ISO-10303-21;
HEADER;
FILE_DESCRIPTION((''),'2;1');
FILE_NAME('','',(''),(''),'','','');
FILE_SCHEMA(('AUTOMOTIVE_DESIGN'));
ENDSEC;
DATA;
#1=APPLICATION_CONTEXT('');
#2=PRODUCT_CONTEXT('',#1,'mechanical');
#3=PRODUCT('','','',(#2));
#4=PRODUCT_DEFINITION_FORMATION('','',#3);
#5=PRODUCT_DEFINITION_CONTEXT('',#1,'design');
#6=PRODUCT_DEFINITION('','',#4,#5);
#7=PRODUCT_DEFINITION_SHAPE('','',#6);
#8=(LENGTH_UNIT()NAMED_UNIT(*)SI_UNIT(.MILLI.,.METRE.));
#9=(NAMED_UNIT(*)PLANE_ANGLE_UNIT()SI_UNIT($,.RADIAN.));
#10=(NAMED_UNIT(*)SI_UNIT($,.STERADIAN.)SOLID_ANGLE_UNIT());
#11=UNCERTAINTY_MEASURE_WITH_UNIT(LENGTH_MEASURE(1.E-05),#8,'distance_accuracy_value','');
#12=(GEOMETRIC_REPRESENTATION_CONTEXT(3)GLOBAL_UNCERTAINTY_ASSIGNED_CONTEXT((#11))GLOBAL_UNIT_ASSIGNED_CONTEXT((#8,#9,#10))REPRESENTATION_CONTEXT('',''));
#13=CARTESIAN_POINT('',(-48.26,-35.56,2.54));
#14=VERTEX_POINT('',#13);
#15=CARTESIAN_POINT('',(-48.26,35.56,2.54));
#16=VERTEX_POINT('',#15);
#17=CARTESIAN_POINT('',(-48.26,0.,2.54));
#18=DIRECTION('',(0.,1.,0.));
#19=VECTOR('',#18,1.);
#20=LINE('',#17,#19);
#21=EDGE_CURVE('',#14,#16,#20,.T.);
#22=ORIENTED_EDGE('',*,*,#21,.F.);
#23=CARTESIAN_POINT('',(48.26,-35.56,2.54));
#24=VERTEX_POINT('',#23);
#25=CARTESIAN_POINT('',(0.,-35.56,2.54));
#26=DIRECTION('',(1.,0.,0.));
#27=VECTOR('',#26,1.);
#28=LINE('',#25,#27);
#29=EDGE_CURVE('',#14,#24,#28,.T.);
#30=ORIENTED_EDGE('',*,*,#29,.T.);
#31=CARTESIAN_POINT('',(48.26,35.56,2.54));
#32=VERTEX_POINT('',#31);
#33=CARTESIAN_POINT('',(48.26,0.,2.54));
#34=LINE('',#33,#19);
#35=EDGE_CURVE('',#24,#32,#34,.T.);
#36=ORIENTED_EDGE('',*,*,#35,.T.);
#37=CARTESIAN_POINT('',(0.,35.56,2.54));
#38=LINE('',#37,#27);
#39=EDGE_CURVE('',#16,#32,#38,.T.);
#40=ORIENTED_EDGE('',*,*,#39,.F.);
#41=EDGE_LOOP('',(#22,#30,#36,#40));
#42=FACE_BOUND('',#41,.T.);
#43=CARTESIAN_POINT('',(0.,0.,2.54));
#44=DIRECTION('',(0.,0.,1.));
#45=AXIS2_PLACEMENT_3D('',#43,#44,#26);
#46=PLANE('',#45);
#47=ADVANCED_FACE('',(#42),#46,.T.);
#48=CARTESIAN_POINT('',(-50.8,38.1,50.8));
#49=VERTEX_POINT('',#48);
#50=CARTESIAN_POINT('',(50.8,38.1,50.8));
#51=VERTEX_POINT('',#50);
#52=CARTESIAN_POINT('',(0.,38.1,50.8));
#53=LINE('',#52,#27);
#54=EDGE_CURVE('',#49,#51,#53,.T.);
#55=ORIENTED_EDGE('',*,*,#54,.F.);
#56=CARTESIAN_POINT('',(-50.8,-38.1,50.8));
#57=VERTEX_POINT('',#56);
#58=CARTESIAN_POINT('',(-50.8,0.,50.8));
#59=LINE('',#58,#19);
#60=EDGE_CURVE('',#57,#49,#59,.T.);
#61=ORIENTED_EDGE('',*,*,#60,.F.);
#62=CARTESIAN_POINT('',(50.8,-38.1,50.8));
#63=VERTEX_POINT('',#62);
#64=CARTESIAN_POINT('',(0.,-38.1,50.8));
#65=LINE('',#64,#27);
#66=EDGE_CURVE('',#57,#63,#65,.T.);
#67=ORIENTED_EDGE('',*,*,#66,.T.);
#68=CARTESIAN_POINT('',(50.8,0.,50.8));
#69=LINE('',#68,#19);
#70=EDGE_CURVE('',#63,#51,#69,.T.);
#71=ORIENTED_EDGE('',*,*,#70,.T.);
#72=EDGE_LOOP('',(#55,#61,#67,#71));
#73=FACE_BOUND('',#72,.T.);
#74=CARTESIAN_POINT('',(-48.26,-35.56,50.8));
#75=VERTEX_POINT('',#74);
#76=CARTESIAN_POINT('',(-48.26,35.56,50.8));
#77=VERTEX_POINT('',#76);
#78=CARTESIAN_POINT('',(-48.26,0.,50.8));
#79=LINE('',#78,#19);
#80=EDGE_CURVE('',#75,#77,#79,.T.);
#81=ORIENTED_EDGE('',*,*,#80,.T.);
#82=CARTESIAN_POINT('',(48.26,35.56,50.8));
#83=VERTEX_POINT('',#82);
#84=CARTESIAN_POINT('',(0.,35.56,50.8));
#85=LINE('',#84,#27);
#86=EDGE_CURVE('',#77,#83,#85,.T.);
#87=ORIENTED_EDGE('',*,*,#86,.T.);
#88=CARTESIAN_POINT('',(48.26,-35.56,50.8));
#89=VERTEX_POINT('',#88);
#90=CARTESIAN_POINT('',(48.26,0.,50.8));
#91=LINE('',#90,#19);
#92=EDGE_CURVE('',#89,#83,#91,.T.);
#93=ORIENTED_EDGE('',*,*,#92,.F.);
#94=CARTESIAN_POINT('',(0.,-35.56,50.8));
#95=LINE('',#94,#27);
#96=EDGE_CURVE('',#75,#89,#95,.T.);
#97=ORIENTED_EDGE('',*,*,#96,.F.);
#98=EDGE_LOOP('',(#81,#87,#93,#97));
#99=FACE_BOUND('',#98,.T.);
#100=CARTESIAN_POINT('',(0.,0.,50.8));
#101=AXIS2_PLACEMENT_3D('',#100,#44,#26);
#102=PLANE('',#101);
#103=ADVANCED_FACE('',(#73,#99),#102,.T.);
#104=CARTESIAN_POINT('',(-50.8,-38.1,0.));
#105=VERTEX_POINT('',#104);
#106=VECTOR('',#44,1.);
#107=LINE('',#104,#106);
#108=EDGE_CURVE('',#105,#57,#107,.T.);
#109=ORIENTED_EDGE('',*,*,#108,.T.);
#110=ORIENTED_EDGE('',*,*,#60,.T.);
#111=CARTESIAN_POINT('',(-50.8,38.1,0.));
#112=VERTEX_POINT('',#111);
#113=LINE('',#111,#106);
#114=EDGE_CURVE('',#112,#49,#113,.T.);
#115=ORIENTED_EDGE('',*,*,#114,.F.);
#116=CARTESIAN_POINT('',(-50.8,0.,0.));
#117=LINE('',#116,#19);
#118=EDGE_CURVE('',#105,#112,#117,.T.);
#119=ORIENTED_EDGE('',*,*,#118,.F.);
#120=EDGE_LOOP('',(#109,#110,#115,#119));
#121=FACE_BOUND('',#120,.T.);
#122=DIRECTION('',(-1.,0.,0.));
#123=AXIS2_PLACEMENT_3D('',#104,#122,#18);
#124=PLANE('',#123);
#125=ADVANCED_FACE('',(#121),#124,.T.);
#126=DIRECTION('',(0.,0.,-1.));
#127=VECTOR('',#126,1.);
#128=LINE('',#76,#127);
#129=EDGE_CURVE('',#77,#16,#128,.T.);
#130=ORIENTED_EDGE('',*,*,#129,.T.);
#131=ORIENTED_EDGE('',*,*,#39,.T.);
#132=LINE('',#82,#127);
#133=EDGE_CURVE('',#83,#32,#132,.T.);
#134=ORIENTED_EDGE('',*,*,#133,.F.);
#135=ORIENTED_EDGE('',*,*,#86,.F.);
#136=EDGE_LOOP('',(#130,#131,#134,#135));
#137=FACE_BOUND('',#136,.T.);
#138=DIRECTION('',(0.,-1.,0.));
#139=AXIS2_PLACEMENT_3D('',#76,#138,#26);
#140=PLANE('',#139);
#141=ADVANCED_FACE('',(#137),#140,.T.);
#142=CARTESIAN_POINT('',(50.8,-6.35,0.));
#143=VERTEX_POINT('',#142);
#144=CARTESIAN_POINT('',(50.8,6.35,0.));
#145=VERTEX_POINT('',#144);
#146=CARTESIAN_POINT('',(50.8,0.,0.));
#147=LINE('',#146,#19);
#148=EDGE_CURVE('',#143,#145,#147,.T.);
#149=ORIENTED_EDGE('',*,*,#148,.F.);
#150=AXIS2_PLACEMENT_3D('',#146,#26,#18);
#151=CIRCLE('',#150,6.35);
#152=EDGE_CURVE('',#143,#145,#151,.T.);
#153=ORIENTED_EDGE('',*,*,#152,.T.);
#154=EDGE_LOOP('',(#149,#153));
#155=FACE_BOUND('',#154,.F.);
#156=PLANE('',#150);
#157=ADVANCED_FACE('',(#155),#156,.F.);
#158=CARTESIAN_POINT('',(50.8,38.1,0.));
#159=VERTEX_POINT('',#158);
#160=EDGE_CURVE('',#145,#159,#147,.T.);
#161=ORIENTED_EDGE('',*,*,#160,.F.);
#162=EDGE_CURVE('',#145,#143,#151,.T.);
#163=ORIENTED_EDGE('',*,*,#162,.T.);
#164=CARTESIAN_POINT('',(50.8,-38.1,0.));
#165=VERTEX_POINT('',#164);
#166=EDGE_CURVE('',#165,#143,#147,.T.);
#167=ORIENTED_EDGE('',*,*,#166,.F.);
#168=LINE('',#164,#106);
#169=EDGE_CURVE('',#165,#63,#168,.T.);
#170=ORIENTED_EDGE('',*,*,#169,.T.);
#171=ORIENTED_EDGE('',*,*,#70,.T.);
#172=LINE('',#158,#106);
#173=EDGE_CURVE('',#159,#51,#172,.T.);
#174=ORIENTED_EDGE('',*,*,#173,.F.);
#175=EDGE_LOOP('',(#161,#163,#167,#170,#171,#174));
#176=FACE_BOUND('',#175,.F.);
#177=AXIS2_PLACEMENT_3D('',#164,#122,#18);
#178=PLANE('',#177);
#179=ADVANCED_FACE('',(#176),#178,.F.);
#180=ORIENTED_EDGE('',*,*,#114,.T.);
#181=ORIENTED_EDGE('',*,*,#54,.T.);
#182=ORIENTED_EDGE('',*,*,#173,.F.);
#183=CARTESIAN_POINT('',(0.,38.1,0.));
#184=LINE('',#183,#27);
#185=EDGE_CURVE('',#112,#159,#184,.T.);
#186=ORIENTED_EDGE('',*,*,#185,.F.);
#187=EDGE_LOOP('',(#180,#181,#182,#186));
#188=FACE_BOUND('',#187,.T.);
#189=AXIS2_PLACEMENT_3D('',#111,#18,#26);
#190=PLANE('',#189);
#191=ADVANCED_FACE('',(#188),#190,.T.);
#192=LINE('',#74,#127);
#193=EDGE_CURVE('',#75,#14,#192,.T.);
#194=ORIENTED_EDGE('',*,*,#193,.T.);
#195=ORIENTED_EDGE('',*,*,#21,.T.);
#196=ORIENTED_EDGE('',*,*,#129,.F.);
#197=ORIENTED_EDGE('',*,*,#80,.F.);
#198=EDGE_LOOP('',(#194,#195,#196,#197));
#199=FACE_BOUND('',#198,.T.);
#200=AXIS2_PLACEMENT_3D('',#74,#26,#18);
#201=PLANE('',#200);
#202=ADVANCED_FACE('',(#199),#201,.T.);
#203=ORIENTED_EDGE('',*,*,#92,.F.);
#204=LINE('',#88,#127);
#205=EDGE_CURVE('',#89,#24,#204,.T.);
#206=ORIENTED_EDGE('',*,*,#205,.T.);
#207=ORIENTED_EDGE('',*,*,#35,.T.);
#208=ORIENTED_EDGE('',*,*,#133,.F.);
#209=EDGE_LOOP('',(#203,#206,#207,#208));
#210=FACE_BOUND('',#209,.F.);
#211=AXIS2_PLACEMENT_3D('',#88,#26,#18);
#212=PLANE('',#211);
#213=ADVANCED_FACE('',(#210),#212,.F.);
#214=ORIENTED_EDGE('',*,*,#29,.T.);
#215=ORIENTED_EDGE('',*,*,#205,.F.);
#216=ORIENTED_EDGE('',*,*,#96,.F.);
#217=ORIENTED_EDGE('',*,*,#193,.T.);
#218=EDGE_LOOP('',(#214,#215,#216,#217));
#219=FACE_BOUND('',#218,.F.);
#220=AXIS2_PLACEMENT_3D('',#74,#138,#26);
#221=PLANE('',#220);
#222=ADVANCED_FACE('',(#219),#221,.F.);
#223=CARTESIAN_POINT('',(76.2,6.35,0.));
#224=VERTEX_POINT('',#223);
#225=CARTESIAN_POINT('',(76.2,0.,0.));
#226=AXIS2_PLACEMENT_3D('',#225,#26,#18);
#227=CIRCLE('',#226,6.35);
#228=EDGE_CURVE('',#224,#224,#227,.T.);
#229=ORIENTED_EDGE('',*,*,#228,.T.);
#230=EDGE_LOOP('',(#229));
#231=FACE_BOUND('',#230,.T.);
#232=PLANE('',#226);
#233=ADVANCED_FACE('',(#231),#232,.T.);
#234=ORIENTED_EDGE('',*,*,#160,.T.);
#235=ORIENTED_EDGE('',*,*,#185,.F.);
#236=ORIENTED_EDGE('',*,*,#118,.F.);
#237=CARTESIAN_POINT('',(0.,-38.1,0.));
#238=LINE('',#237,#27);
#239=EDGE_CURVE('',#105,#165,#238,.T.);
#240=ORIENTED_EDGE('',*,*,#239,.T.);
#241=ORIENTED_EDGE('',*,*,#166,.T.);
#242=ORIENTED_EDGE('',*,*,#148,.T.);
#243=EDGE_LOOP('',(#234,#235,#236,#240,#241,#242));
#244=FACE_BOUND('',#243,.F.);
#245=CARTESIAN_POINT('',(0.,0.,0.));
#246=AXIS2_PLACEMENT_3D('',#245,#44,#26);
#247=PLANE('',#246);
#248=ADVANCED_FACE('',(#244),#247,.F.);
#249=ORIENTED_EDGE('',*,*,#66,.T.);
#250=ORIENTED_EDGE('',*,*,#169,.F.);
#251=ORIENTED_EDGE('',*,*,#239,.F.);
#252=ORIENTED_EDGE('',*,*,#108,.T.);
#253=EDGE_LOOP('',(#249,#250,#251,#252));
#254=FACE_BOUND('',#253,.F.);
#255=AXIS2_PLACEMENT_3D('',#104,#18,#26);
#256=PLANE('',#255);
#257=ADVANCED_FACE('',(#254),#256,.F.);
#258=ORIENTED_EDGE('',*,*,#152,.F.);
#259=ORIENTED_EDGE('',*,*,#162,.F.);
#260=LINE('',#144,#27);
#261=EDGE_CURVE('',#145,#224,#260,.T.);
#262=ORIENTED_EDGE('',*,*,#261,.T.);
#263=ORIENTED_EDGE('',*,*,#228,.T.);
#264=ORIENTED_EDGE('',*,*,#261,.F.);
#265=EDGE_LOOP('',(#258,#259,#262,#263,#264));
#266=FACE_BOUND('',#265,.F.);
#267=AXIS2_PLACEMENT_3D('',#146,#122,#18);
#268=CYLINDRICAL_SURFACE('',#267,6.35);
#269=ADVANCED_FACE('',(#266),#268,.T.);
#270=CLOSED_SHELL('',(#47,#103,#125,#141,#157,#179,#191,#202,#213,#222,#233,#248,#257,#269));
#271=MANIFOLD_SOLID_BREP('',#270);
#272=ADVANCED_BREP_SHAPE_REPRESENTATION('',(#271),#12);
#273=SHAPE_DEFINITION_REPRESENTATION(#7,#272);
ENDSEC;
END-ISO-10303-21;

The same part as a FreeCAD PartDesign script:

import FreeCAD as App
import Part
import Sketcher
Q = App.Units.Quantity

doc = App.newDocument("Part")
body = doc.addObject("PartDesign::Body", "Body")

# Sketch on XY plane
sketch1 = body.newObject("Sketcher::SketchObject", "Sketch")
sketch1.AttachmentSupport = (doc.getObject("XY_Plane"), [""])
sketch1.MapMode = "FlatFace"
sketch1.addGeometry([
    Part.LineSegment(App.Vector(-51, 38, 0), App.Vector(-51, -38, 0)),
    Part.LineSegment(App.Vector(-51, -38, 0), App.Vector(51, -38, 0)),
    Part.LineSegment(App.Vector(51, -38, 0), App.Vector(51, 38, 0)),
    Part.LineSegment(App.Vector(51, 38, 0), App.Vector(-51, 38, 0)),
], False)
sketch1.addConstraint([
    Sketcher.Constraint("Coincident", 0, 2, 1, 1),
    Sketcher.Constraint("Coincident", 1, 2, 2, 1),
    Sketcher.Constraint("Coincident", 2, 2, 3, 1),
    Sketcher.Constraint("Coincident", 3, 2, 0, 1),
    Sketcher.Constraint("Vertical", 0),
    Sketcher.Constraint("Horizontal", 1),
    Sketcher.Constraint("Vertical", 2),
    Sketcher.Constraint("Horizontal", 3),
    Sketcher.Constraint("Symmetric", 0, 2, 2, 2, -1, 1),
    Sketcher.Constraint("DistanceX", 1, 1, 1, 2, Q("4 in")),
    Sketcher.Constraint("DistanceY", 0, 2, 0, 1, Q("3 in")),
])
pad1 = body.newObject("PartDesign::Pad", "Pad")
pad1.Profile = sketch1
pad1.Length = Q("2 in")

# Sketch on XY plane
sketch2 = body.newObject("Sketcher::SketchObject", "Sketch001")
sketch2.AttachmentSupport = (doc.getObject("XY_Plane"), [""])
sketch2.MapMode = "FlatFace"
sketch2.AttachmentOffset = App.Placement(App.Vector(0, 0, 2 * 25.4), App.Rotation())
sketch2.addGeometry([
    Part.LineSegment(App.Vector(-48, 36, 0), App.Vector(-48, -36, 0)),
    Part.LineSegment(App.Vector(-48, -36, 0), App.Vector(48, -36, 0)),
    Part.LineSegment(App.Vector(48, -36, 0), App.Vector(48, 36, 0)),
    Part.LineSegment(App.Vector(48, 36, 0), App.Vector(-48, 36, 0)),
], False)
sketch2.addConstraint([
    Sketcher.Constraint("Coincident", 0, 2, 1, 1),
    Sketcher.Constraint("Coincident", 1, 2, 2, 1),
    Sketcher.Constraint("Coincident", 2, 2, 3, 1),
    Sketcher.Constraint("Coincident", 3, 2, 0, 1),
    Sketcher.Constraint("Vertical", 0),
    Sketcher.Constraint("Horizontal", 1),
    Sketcher.Constraint("Vertical", 2),
    Sketcher.Constraint("Horizontal", 3),
    Sketcher.Constraint("Symmetric", 0, 2, 2, 2, -1, 1),
    Sketcher.Constraint("DistanceX", 1, 1, 1, 2, Q("3.8 in")),
    Sketcher.Constraint("DistanceY", 0, 2, 0, 1, Q("2.8 in")),
])
pocket1 = body.newObject("PartDesign::Pocket", "Pocket")
pocket1.Profile = sketch2
pocket1.Length = Q("1.9 in")

# Sketch on YZ plane
sketch3 = body.newObject("Sketcher::SketchObject", "Sketch002")
sketch3.AttachmentSupport = (doc.getObject("YZ_Plane"), [""])
sketch3.MapMode = "FlatFace"
sketch3.AttachmentOffset = App.Placement(App.Vector(0, 0, 2 * 25.4), App.Rotation())
sketch3.addGeometry(Part.Circle(App.Vector(0, 0, 0), App.Vector(0, 0, 1), 6), False)
sketch3.addConstraint([
    Sketcher.Constraint("Coincident", 0, 3, -1, 1),
    Sketcher.Constraint("Diameter", 0, Q("0.5 in")),
])
pad2 = body.newObject("PartDesign::Pad", "Pad001")
pad2.Profile = sketch3
pad2.Length = Q("1 in")

doc.recompute()
